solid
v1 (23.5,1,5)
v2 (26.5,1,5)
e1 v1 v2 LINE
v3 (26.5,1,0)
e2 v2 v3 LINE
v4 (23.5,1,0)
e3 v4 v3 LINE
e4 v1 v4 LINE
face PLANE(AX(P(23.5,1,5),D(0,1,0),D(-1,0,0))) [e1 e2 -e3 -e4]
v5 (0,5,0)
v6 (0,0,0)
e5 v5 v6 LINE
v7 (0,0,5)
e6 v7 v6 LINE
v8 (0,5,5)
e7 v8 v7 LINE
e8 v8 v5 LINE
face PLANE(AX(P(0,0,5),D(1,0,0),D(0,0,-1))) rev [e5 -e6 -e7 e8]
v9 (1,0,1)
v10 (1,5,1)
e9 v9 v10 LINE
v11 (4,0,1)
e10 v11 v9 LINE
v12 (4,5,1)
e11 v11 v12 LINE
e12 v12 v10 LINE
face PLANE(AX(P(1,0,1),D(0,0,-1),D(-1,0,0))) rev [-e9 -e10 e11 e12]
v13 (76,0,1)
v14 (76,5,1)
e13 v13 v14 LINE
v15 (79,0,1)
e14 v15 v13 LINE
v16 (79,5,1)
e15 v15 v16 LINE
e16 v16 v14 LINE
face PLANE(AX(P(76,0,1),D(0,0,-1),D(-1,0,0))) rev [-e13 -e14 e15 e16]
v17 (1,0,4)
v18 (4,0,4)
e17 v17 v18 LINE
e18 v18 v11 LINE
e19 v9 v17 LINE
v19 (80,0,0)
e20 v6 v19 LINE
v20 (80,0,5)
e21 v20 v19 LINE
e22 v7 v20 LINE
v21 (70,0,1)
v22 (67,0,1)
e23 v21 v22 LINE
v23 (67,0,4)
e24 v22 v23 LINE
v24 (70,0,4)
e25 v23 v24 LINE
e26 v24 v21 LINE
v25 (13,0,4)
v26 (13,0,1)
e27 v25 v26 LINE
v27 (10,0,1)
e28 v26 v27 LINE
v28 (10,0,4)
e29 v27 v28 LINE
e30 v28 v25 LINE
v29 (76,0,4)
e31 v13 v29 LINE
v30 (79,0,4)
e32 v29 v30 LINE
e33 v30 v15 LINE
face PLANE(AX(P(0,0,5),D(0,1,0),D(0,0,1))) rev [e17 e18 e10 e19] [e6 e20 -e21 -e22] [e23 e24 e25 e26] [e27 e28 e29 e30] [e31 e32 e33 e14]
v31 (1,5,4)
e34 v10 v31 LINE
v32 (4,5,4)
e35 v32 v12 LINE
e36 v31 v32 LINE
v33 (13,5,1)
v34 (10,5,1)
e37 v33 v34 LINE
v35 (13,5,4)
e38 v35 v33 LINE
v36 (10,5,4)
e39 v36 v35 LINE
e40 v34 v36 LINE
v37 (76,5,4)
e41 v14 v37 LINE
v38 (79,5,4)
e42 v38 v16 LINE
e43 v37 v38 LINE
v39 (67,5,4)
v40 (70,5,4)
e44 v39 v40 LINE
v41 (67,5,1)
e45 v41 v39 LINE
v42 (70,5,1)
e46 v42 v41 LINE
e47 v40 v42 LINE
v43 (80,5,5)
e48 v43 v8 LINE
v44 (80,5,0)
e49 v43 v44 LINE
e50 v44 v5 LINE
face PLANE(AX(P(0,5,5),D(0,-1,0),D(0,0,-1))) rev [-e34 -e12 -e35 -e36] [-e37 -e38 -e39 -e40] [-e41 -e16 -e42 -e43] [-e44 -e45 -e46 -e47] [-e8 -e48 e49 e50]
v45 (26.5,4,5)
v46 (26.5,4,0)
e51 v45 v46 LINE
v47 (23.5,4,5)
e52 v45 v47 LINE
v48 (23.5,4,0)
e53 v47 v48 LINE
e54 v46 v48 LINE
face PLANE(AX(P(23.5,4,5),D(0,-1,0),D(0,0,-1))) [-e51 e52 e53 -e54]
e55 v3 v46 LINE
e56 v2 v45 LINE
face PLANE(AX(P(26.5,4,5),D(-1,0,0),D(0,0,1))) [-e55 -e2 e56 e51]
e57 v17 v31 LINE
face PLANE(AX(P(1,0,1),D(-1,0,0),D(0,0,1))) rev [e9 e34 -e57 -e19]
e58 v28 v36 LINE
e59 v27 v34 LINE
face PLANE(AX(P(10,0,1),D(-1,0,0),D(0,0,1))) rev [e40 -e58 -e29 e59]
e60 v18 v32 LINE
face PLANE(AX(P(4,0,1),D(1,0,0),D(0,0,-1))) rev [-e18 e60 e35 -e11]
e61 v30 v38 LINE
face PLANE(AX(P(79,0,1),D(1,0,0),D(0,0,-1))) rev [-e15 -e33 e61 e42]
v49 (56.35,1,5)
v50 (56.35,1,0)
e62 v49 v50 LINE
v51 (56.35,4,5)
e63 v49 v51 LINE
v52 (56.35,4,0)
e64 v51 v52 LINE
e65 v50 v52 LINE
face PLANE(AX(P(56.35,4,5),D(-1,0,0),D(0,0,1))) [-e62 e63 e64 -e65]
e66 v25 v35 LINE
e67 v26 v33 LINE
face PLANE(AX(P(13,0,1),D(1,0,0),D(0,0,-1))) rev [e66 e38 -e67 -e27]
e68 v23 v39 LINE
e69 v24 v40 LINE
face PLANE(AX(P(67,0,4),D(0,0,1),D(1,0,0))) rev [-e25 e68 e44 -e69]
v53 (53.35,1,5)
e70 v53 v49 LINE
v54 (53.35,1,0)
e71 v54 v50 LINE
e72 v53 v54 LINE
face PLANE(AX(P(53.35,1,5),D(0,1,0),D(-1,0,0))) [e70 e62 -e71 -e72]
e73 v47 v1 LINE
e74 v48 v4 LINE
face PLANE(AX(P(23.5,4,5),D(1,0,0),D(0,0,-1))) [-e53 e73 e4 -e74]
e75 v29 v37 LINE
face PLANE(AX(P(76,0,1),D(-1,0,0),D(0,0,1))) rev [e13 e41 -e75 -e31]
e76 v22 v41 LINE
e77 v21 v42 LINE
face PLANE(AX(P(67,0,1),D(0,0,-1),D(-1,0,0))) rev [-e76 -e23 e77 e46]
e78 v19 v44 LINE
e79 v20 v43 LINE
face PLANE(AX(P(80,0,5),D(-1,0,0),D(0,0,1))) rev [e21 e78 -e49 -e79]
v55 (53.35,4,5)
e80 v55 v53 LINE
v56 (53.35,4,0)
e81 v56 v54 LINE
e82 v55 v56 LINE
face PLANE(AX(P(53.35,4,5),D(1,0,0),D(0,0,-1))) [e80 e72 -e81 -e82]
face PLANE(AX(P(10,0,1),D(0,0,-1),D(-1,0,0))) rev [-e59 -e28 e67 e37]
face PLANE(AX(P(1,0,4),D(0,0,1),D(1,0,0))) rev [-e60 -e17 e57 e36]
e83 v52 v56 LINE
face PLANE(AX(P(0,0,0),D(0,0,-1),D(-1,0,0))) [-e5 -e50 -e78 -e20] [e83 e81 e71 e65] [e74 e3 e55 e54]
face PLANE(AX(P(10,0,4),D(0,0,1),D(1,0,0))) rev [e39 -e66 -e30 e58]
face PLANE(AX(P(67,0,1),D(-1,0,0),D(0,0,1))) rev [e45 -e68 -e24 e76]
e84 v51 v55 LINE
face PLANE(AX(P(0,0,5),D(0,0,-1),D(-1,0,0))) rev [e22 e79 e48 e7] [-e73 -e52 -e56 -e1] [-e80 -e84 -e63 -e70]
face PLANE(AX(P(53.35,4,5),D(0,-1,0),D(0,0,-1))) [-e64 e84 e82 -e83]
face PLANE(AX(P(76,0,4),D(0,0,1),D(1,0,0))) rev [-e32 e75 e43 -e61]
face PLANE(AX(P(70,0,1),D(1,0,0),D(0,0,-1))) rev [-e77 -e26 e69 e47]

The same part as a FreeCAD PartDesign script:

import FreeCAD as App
import Part
import Sketcher
from FreeCAD import Vector
Q = App.Units.Quantity


def add_polygon(sketch, points):
    """Adds a closed chain of lines whose ends are joined by coincident constraints."""
    first, n = sketch.GeometryCount, len(points)
    for a, b in zip(points, points[1:] + points[:1]):
        sketch.addGeometry(Part.LineSegment(App.Vector(*a, 0), App.Vector(*b, 0)), False)
    for i in range(n):
        sketch.addConstraint(Sketcher.Constraint("Coincident", first + i, 2, first + (i + 1) % n, 1))

doc = App.newDocument("Part")
body = doc.addObject("PartDesign::Body", "Body")

sketch1 = body.newObject("Sketcher::SketchObject", "Sketch")
sketch1.AttachmentSupport = (doc.getObject("XY_Plane"), [""])
sketch1.MapMode = "FlatFace"
add_polygon(sketch1, [(0, 5), (0, 0), (80, 0), (80, 5)])
add_polygon(sketch1, [(26.5, 1), (23.5, 1), (23.5, 4), (26.5, 4)])
add_polygon(sketch1, [(56.4, 1), (53.4, 1), (53.4, 4), (56.4, 4)])
sketch1.addConstraint([
    Sketcher.Constraint("Vertical", 0),
    Sketcher.Constraint("Horizontal", 1),
    Sketcher.Constraint("Vertical", 2),
    Sketcher.Constraint("Horizontal", 3),
    Sketcher.Constraint("Horizontal", 4),
    Sketcher.Constraint("Vertical", 5),
    Sketcher.Constraint("Horizontal", 6),
    Sketcher.Constraint("Vertical", 7),
    Sketcher.Constraint("Horizontal", 8),
    Sketcher.Constraint("Vertical", 9),
    Sketcher.Constraint("Horizontal", 10),
    Sketcher.Constraint("Vertical", 11),
    Sketcher.Constraint("Coincident", 0, 2, -1, 1),
    Sketcher.Constraint("Horizontal", 7, 2, 8, 2),
    Sketcher.Constraint("Horizontal", 6, 2, 9, 2),
    Sketcher.Constraint("Equal", 6, 8),
    Sketcher.Constraint("Equal", 10, 5),
    Sketcher.Constraint("DistanceX", 1, 1, 1, 2, Q("80 mm")),
    Sketcher.Constraint("DistanceX", 4, 2, 4, 1, Q("3 mm")),
    Sketcher.Constraint("DistanceY", 0, 2, 0, 1, Q("5 mm")),
    Sketcher.Constraint("DistanceY", -1, 1, 4, 2, Q("1 mm")),
    Sketcher.Constraint("DistanceX", -1, 1, 4, 2, Q("23.5 mm")),
    Sketcher.Constraint("DistanceX", -1, 1, 8, 2, Q("53.35 mm")),
])
pad1 = body.newObject("PartDesign::Pad", "Pad")
pad1.Profile = sketch1
pad1.Length = 5

sketch2 = body.newObject("Sketcher::SketchObject", "Sketch001")
sketch2.AttachmentSupport = (doc.getObject("XZ_Plane"), [""])
sketch2.MapMode = "FlatFace"
sketch2.AttachmentOffset = App.Placement(Vector(0, 0, -5), App.Rotation())
add_polygon(sketch2, [(76, 1), (76, 4), (79, 4), (79, 1)])
add_polygon(sketch2, [(1, 1), (1, 4), (4, 4), (4, 1)])
add_polygon(sketch2, [(10, 1), (10, 4), (13, 4), (13, 1)])
add_polygon(sketch2, [(67, 1), (67, 4), (70, 4), (70, 1)])
sketch2.addConstraint([
    Sketcher.Constraint("Vertical", 0),
    Sketcher.Constraint("Horizontal", 1),
    Sketcher.Constraint("Vertical", 2),
    Sketcher.Constraint("Horizontal", 3),
    Sketcher.Constraint("Vertical", 4),
    Sketcher.Constraint("Horizontal", 5),
    Sketcher.Constraint("Vertical", 6),
    Sketcher.Constraint("Horizontal", 7),
    Sketcher.Constraint("Vertical", 8),
    Sketcher.Constraint("Horizontal", 9),
    Sketcher.Constraint("Vertical", 10),
    Sketcher.Constraint("Horizontal", 11),
    Sketcher.Constraint("Vertical", 12),
    Sketcher.Constraint("Horizontal", 13),
    Sketcher.Constraint("Vertical", 14),
    Sketcher.Constraint("Horizontal", 15),
    Sketcher.Constraint("Horizontal", 1, 2, 4, 2),
    Sketcher.Constraint("Horizontal", 3, 2, 6, 2),
    Sketcher.Constraint("Horizontal", 5, 2, 8, 2),
    Sketcher.Constraint("Horizontal", 7, 2, 10, 2),
    Sketcher.Constraint("Horizontal", 9, 2, 12, 2),
    Sketcher.Constraint("Horizontal", 11, 2, 14, 2),
    Sketcher.Constraint("Equal", 3, 5),
    Sketcher.Constraint("Equal", 7, 9),
    Sketcher.Constraint("Equal", 11, 13),
    Sketcher.Constraint("Equal", 15, 0),
    Sketcher.Constraint("DistanceX", 1, 1, 1, 2, Q("3 mm")),
    Sketcher.Constraint("DistanceX", -1, 1, 0, 2, Q("76 mm")),
    Sketcher.Constraint("DistanceY", -1, 1, 0, 2, Q("4 mm")),
    Sketcher.Constraint("DistanceX", -1, 1, 4, 2, Q("1 mm")),
    Sketcher.Constraint("DistanceX", -1, 1, 8, 2, Q("10 mm")),
    Sketcher.Constraint("DistanceX", -1, 1, 12, 2, Q("67 mm")),
])
pocket1 = body.newObject("PartDesign::Pocket", "Pocket")
pocket1.Profile = sketch2
pocket1.Length = 5
pocket1.Reversed = True

doc.recompute()
